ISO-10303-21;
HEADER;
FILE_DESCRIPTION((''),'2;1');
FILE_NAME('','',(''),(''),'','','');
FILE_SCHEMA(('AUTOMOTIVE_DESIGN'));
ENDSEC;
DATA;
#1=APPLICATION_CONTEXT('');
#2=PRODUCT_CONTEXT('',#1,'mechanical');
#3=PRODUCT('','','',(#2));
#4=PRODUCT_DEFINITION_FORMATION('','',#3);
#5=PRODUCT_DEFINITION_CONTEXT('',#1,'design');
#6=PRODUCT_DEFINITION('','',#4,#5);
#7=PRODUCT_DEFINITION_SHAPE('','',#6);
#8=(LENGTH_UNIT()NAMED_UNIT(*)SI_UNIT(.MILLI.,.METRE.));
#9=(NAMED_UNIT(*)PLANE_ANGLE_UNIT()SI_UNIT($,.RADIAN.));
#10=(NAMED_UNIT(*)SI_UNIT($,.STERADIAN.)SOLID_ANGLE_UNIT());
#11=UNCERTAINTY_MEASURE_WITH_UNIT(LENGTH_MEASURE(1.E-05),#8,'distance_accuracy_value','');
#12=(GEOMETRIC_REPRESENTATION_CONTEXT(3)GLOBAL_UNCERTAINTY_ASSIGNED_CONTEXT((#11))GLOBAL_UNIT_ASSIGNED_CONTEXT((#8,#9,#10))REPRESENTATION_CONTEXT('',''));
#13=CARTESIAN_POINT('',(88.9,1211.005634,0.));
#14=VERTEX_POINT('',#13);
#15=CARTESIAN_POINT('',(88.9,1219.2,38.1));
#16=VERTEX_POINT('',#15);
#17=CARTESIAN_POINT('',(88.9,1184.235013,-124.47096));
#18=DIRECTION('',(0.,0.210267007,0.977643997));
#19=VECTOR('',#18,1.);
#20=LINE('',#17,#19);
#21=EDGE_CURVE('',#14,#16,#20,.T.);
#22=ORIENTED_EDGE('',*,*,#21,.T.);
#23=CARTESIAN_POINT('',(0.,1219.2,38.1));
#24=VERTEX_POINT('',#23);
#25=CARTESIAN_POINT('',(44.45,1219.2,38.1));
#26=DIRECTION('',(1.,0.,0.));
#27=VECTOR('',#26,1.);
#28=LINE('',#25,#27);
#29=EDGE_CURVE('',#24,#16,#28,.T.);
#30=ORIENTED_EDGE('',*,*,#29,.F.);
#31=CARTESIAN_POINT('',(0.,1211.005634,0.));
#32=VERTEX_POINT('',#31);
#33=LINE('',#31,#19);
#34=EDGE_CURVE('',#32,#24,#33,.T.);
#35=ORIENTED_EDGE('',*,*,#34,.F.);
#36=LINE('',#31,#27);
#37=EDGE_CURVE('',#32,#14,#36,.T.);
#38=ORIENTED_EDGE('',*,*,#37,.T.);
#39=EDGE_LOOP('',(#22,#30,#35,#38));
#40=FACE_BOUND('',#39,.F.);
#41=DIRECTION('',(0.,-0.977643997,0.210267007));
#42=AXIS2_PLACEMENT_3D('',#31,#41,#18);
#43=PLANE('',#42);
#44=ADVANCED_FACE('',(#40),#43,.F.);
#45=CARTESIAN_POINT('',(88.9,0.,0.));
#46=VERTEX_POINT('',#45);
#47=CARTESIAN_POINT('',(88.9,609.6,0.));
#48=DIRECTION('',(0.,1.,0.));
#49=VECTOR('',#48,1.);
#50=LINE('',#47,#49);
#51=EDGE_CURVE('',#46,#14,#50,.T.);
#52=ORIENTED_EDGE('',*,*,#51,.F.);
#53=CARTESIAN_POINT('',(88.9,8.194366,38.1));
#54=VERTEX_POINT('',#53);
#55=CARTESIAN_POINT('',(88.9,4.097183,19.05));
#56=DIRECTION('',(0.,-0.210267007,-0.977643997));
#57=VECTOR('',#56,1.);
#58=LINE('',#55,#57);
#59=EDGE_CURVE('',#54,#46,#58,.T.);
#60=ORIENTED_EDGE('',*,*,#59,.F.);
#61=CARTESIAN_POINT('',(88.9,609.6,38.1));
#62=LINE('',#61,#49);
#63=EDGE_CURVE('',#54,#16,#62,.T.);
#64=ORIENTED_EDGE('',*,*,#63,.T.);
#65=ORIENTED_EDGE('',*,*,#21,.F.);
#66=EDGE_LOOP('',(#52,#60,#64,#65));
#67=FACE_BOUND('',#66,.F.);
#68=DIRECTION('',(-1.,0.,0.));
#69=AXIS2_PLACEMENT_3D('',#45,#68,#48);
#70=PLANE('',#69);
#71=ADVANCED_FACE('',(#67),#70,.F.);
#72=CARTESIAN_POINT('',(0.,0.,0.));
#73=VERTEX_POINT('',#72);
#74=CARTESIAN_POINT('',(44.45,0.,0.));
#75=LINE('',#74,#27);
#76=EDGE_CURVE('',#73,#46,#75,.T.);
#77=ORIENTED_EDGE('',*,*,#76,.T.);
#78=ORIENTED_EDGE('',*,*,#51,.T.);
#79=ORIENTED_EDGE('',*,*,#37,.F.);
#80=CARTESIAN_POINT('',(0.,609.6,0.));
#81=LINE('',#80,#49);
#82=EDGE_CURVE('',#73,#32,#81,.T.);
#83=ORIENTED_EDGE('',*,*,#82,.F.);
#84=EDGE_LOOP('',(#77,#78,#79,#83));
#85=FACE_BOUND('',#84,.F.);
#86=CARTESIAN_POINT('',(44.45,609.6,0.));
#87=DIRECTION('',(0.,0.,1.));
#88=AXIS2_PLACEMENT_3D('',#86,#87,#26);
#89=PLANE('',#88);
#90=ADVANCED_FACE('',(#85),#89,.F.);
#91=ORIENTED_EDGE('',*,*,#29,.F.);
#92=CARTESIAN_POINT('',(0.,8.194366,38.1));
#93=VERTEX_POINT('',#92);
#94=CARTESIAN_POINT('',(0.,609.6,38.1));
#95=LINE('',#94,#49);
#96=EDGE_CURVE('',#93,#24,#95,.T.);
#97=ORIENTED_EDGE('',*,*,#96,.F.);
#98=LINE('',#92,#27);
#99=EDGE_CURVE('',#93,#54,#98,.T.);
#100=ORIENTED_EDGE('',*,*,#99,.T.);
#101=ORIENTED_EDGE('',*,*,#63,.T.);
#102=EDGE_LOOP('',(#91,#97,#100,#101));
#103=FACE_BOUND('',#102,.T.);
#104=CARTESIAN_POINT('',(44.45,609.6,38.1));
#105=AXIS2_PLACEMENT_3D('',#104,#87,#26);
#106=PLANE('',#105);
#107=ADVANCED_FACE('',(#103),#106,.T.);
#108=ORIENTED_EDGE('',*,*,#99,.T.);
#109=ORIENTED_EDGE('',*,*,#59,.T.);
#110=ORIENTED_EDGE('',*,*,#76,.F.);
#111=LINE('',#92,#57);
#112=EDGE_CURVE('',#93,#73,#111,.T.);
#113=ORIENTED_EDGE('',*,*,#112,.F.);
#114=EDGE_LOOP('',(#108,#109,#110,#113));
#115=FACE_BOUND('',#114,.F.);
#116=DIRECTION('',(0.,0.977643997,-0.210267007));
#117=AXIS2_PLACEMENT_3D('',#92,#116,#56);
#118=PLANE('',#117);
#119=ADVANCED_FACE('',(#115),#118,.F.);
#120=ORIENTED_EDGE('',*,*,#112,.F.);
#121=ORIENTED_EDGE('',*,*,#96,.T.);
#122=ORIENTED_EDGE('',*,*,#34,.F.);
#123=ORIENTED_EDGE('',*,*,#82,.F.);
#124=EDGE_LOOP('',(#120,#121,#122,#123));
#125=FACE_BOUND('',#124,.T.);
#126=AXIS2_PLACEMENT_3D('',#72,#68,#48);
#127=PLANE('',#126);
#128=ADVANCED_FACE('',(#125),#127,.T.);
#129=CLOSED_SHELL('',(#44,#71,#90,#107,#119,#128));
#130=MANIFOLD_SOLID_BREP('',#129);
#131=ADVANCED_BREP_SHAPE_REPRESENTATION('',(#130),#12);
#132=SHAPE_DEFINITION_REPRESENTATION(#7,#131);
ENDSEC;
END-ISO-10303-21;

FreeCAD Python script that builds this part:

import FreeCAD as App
import Part
import Sketcher
Q = App.Units.Quantity


def add_polygon(sketch, points):
    """Adds a closed chain of lines whose ends are joined by coincident constraints."""
    first, n = sketch.GeometryCount, len(points)
    for a, b in zip(points, points[1:] + points[:1]):
        sketch.addGeometry(Part.LineSegment(App.Vector(*a, 0), App.Vector(*b, 0)), False)
    for i in range(n):
        sketch.addConstraint(Sketcher.Constraint("Coincident", first + i, 2, first + (i + 1) % n, 1))

doc = App.newDocument("Part")
body = doc.addObject("PartDesign::Body", "Body")

# Sketch on XY plane
sketch1 = body.newObject("Sketcher::SketchObject", "Sketch")
sketch1.AttachmentSupport = (doc.getObject("XY_Plane"), [""])
sketch1.MapMode = "FlatFace"
add_polygon(sketch1, [(0, 1219.2), (0, 0), (88.9, 0), (88.9, 1219.2)])  # lines 0-3
sketch1.addConstraint(Sketcher.Constraint("Vertical", 0))
sketch1.addConstraint(Sketcher.Constraint("Horizontal", 1))
sketch1.addConstraint(Sketcher.Constraint("Vertical", 2))
sketch1.addConstraint(Sketcher.Constraint("Horizontal", 3))
sketch1.addConstraint(Sketcher.Constraint("Coincident", 0, 2, -1, 1))
sketch1.addConstraint(Sketcher.Constraint("DistanceY", 0, 2, 0, 1, Q("48 in")))
sketch1.addConstraint(Sketcher.Constraint("DistanceX", 1, 1, 1, 2, Q("3.5 in")))
pad1 = body.newObject("PartDesign::Pad", "Pad")
pad1.Profile = sketch1
pad1.Length = Q("1.5 in")

# Sketch on YZ plane
sketch2 = body.newObject("Sketcher::SketchObject", "Sketch001")
sketch2.AttachmentSupport = (doc.getObject("YZ_Plane"), [""])
sketch2.MapMode = "FlatFace"
add_polygon(sketch2, [(0, 38.1), (8.194366, 38.1), (0, 0)])  # lines 0-2
add_polygon(sketch2, [(1219.2, 38.1), (1219.2, 0), (1211.005634, 0)])  # lines 3-5
sketch2.addConstraint(Sketcher.Constraint("Horizontal", 0))
sketch2.addConstraint(Sketcher.Constraint("Vertical", 2))
sketch2.addConstraint(Sketcher.Constraint("Vertical", 3))
sketch2.addConstraint(Sketcher.Constraint("Horizontal", 4))
sketch2.addConstraint(Sketcher.Constraint("Coincident", 1, 2, -1, 1))
sketch2.addConstraint(Sketcher.Constraint("PointOnObject", 3, 2, -1))
sketch2.addConstraint(Sketcher.Constraint("Parallel", 1, 5))
sketch2.addConstraint(Sketcher.Constraint("Horizontal", 2, 2, 5, 2))
sketch2.addConstraint(Sketcher.Constraint("DistanceY", 2, 1, 2, 2, Q("1.5 in")))
sketch2.addConstraint(Sketcher.Constraint("DistanceX", -1, 1, 3, 2, Q("48 in")))
sketch2.addConstraint(Sketcher.Constraint("Distance", 1, Q("38.971241 mm")))
pocket1 = body.newObject("PartDesign::Pocket", "Pocket")
pocket1.Profile = sketch2
pocket1.Type = "ThroughAll"
pocket1.Reversed = True

doc.recompute()
